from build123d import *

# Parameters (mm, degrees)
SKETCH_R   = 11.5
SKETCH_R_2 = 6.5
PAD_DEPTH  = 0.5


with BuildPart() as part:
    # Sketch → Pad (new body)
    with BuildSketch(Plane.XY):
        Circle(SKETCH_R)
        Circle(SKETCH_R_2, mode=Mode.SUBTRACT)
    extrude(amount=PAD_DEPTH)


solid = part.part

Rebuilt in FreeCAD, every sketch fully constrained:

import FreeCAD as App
import Part
import Sketcher
from FreeCAD import Vector

doc = App.newDocument("Part")
params = doc.addObject("Spreadsheet::Sheet", "Params")
for row, (alias, value) in enumerate([
    ("sketch1_diameter", "23 mm"),
    ("sketch1_diameter2", "13 mm"),
    ("pad1_length", "0.5 mm"),
], start=1):
    params.set(f"A{row}", alias)
    params.set(f"B{row}", "=" + value)
    params.setAlias(f"B{row}", alias)

body = doc.addObject("PartDesign::Body", "Body")

# Sketch on XY plane
sketch1 = body.newObject("Sketcher::SketchObject", "Sketch")
sketch1.AttachmentSupport = (doc.getObject("XY_Plane"), [""])
sketch1.MapMode = "FlatFace"
sketch1.addGeometry([
    Part.Circle(Vector(0, 0, 0), Vector(0, 0, 1), 12),
    Part.Circle(Vector(0, 0, 0), Vector(0, 0, 1), 6),
], False)
sketch1.addConstraint([
    Sketcher.Constraint("Coincident", 0, 3, -1, 1),
    Sketcher.Constraint("Coincident", 1, 3, -1, 1),
    Sketcher.Constraint("Diameter", 0, 23.0),
    Sketcher.Constraint("Diameter", 1, 13.0),
])
sketch1.setExpression("Constraints[2]", "Params.sketch1_diameter")
sketch1.setExpression("Constraints[3]", "Params.sketch1_diameter2")
pad1 = body.newObject("PartDesign::Pad", "Pad")
pad1.Profile = sketch1
pad1.setExpression("Length", "Params.pad1_length")

doc.recompute()
